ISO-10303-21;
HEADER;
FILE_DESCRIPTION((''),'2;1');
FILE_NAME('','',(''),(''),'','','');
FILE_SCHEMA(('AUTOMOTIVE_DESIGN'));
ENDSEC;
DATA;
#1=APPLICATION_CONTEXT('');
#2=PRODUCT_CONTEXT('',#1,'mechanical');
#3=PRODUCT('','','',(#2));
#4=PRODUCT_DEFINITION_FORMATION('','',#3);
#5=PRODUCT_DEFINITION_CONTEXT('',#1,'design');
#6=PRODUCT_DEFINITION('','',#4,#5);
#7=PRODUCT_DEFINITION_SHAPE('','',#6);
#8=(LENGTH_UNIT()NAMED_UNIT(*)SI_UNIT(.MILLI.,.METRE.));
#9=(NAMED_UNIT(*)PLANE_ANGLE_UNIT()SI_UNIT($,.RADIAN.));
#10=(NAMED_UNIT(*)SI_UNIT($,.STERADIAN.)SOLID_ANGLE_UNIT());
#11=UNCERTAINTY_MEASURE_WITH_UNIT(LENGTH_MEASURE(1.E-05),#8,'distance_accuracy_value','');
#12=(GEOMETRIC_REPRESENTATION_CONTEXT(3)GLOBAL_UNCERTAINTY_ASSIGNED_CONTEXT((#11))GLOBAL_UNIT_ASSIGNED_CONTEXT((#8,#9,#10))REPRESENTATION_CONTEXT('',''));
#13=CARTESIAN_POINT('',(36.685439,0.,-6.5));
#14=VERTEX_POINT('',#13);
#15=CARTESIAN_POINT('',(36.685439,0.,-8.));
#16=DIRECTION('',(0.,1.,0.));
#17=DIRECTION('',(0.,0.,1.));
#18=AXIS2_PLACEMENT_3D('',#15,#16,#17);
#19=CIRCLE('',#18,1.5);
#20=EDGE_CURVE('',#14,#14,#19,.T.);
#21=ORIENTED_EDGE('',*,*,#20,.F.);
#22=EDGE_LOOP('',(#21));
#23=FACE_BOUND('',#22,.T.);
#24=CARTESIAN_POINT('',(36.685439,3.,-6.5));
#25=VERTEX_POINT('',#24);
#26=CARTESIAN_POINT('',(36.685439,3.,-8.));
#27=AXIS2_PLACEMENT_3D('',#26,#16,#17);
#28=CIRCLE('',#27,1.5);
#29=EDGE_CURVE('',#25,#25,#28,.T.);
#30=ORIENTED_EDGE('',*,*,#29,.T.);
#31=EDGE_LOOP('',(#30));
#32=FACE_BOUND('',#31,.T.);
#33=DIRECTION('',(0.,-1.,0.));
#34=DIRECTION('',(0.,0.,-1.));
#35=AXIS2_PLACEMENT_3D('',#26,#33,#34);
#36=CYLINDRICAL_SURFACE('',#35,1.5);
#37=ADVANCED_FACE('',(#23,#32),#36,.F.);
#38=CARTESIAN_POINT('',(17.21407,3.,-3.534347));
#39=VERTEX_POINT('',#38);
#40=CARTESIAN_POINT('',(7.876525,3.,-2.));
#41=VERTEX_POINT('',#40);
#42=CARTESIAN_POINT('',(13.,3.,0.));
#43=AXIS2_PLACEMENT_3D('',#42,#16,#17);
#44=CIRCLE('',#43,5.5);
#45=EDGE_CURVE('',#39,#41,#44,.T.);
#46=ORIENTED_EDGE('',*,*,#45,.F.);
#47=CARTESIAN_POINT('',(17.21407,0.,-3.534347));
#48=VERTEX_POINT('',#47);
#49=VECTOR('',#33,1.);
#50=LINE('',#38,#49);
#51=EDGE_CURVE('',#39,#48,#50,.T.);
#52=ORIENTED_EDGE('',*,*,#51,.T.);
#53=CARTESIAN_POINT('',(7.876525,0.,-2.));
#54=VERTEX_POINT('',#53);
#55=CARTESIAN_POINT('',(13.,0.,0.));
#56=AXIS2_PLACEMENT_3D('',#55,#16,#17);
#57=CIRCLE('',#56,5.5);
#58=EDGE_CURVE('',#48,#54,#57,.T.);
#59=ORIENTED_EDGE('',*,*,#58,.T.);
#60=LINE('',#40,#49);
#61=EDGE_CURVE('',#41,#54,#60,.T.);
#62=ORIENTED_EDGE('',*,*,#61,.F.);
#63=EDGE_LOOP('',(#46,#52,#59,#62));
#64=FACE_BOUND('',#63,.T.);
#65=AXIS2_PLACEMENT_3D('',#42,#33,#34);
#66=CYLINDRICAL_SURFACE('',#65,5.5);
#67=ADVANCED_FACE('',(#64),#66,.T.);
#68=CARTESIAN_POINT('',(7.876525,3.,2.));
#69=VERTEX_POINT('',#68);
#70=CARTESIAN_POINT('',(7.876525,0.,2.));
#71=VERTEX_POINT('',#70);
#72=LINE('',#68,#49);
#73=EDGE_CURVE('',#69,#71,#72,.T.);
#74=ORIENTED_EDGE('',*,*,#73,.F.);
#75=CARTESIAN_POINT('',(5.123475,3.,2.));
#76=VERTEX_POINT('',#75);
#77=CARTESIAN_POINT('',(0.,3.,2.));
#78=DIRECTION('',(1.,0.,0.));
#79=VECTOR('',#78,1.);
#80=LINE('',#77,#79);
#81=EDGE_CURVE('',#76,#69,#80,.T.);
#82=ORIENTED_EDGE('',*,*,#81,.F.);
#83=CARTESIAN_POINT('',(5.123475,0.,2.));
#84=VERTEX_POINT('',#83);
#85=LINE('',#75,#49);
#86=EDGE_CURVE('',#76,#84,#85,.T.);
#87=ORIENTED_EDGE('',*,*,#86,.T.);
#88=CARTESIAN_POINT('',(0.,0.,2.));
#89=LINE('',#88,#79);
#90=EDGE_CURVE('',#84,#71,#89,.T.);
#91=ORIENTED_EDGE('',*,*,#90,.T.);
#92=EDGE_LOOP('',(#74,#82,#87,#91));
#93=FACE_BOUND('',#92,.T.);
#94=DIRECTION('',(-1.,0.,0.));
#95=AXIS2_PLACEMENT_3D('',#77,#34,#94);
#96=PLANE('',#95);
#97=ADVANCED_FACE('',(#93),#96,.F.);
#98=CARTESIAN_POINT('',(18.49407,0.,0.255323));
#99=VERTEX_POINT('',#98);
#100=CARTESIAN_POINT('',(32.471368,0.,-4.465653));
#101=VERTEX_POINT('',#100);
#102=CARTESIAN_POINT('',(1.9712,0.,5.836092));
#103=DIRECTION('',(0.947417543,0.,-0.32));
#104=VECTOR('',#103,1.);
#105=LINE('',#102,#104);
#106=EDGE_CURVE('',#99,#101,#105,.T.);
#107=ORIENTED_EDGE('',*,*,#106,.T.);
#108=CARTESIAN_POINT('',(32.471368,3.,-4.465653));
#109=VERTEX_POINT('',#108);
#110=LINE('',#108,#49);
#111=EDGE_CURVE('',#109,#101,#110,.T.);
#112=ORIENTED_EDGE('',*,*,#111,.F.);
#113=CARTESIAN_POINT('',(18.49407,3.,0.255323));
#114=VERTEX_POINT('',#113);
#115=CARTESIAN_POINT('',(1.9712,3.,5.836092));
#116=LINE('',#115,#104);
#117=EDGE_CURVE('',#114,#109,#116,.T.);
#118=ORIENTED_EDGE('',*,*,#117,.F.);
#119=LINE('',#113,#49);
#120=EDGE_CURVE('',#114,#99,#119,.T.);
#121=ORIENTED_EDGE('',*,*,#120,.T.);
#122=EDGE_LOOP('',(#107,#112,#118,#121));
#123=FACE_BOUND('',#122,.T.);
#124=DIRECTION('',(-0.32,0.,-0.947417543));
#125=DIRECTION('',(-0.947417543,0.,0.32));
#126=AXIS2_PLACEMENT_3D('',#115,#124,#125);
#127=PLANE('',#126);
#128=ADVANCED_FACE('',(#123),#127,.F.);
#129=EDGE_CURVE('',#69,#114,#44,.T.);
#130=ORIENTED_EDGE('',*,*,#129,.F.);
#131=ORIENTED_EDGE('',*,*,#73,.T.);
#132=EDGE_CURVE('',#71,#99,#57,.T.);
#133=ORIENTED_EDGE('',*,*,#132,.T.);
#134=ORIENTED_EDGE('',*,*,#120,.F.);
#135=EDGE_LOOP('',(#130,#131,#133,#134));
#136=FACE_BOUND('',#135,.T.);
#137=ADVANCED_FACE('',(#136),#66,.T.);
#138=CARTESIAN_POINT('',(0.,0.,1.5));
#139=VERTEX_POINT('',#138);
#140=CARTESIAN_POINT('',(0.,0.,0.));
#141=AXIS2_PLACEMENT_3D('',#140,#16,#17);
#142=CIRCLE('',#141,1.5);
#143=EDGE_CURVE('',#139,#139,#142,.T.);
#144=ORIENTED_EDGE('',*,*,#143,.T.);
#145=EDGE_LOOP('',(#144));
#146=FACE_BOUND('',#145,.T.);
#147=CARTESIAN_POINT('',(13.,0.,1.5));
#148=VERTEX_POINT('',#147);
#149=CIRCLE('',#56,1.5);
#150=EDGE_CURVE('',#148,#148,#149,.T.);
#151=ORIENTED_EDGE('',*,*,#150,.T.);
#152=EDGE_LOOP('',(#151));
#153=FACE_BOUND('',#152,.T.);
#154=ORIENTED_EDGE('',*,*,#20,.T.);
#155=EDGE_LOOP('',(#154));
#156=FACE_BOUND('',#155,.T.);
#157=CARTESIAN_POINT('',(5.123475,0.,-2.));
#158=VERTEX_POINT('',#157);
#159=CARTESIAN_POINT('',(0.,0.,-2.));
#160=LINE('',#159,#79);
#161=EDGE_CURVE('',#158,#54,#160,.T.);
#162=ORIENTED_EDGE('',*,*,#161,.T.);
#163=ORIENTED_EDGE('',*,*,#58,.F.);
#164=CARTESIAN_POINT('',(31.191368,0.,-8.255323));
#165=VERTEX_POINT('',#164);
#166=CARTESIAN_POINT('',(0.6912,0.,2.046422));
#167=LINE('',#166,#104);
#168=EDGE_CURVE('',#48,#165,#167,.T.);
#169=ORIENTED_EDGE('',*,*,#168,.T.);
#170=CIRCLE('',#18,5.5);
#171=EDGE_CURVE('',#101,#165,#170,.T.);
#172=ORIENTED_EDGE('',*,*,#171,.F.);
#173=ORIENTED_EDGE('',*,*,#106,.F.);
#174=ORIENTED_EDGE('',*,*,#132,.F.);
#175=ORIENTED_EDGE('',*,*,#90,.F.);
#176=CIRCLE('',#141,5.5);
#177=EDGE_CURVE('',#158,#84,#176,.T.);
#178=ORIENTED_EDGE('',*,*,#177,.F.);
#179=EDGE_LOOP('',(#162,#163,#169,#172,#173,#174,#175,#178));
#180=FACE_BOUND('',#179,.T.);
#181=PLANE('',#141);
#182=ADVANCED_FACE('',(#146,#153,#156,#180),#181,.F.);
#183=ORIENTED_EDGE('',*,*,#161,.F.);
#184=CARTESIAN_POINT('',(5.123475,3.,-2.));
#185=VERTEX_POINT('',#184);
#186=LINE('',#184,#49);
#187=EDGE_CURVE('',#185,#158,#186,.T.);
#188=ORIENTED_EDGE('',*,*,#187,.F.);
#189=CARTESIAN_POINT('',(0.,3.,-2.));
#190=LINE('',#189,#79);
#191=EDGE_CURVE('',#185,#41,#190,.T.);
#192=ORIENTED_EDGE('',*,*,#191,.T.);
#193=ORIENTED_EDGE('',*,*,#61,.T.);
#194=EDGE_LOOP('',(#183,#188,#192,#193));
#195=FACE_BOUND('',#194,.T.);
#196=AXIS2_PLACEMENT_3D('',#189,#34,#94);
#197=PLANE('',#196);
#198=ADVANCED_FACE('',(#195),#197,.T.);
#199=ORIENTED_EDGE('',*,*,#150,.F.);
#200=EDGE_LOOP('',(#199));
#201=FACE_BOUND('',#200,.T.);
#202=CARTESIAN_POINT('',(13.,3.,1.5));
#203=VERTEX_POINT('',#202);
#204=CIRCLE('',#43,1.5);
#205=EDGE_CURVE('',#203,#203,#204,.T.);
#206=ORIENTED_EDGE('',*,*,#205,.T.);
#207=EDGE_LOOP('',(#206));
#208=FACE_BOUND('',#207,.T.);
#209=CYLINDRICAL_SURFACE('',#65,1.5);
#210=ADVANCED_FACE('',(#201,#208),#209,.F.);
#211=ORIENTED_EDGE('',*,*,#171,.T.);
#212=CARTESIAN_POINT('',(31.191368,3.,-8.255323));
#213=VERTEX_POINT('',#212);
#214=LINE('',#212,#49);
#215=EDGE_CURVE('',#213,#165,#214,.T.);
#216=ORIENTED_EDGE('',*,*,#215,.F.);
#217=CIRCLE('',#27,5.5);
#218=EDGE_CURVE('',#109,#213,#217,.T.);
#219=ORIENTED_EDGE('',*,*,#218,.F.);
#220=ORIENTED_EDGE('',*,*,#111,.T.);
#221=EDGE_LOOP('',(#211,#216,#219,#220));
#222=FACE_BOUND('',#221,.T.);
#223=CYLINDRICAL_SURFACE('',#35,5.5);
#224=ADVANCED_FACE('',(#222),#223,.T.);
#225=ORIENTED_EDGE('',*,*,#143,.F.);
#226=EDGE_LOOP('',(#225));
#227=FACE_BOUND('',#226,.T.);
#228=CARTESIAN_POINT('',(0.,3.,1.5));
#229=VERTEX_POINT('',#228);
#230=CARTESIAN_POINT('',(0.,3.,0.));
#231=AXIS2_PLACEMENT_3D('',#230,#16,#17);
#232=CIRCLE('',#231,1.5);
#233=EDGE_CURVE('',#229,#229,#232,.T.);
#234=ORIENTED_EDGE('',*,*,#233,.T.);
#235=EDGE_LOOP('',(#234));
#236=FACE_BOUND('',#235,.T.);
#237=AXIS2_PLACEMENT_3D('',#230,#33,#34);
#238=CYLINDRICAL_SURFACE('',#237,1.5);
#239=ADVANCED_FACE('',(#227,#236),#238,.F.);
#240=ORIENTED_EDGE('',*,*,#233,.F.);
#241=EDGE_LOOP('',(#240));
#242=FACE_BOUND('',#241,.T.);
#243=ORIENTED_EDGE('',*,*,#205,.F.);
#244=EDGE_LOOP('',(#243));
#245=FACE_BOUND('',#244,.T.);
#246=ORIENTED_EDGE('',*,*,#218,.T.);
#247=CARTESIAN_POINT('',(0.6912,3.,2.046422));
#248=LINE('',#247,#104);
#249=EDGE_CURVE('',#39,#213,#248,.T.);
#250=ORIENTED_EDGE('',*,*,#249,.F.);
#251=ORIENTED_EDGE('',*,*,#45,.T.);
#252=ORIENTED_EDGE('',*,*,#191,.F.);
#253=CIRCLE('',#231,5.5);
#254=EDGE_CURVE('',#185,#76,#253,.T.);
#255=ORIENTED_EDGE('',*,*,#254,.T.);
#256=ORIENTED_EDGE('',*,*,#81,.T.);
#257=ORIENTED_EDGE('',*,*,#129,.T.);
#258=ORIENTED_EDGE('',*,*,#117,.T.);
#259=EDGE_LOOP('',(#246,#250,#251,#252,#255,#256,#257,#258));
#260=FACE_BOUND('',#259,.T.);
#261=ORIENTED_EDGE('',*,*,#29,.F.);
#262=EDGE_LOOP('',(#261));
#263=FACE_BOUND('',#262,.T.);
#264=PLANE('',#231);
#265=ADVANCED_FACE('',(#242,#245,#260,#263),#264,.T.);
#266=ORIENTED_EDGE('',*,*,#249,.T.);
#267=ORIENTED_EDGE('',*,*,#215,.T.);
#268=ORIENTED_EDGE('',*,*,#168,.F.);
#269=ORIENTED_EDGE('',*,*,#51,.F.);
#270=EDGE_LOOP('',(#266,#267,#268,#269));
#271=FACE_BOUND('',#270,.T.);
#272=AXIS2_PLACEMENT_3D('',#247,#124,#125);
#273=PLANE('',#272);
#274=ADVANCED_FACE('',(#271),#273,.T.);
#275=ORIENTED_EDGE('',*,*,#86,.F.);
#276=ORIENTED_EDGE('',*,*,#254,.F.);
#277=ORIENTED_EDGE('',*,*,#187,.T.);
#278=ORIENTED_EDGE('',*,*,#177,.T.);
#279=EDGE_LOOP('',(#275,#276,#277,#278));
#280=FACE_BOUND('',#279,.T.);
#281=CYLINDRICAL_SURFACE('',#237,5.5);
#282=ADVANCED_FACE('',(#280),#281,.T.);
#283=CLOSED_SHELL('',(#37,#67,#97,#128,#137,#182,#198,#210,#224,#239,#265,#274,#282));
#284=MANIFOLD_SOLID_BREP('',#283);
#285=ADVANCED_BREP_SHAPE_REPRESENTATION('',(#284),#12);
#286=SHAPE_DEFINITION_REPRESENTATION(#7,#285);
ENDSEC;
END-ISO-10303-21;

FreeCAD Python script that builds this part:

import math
import FreeCAD as App
import Part
import Sketcher
from FreeCAD import Vector

doc = App.newDocument("Part")
body = doc.addObject("PartDesign::Body", "Body")

# Sketch on XZ plane
sketch1 = body.newObject("Sketcher::SketchObject", "Sketch")
sketch1.AttachmentSupport = (doc.getObject("XZ_Plane"), [""])
sketch1.MapMode = "FlatFace"
sketch1.addGeometry(Part.ArcOfCircle(Part.Circle(Vector(0, 0, 0), Vector(0, 0, 1), 5.5), math.radians(21), math.radians(339)), False)
sketch1.addGeometry(Part.LineSegment(Vector(5.1, 2, 0), Vector(7.9, 2, 0)), False)
sketch1.addGeometry(Part.ArcOfCircle(Part.Circle(Vector(13, 0, 0), Vector(0, 0, 1), 5.5), math.radians(3), math.radians(159)), False)
sketch1.addGeometry(Part.LineSegment(Vector(18.5, 0.3, 0), Vector(32.5, -4.5, 0)), False)
sketch1.addGeometry(Part.ArcOfCircle(Part.Circle(Vector(36.7, -8, 0), Vector(0, 0, 1), 5.5), math.radians(-177), math.radians(140)), False)
sketch1.addGeometry(Part.LineSegment(Vector(31.2, -8.3, 0), Vector(17.2, -3.5, 0)), False)
sketch1.addGeometry(Part.ArcOfCircle(Part.Circle(Vector(13, 0, 0), Vector(0, 0, 1), 5.5), math.radians(-159), math.radians(-40)), False)
sketch1.addGeometry(Part.LineSegment(Vector(7.9, -2, 0), Vector(5.1, -2, 0)), False)
sketch1.addGeometry(Part.Circle(Vector(0, 0, 0), Vector(0, 0, 1), 1.5), False)
sketch1.addGeometry(Part.Circle(Vector(13, 0, 0), Vector(0, 0, 1), 1.5), False)
sketch1.addGeometry(Part.Circle(Vector(36.7, -8, 0), Vector(0, 0, 1), 1.5), False)
sketch1.addConstraint(Sketcher.Constraint("Coincident", 0, 1, 1, 1))
sketch1.addConstraint(Sketcher.Constraint("Coincident", 1, 2, 2, 2))
sketch1.addConstraint(Sketcher.Constraint("Coincident", 2, 1, 3, 1))
sketch1.addConstraint(Sketcher.Constraint("Coincident", 3, 2, 4, 2))
sketch1.addConstraint(Sketcher.Constraint("Coincident", 4, 1, 5, 1))
sketch1.addConstraint(Sketcher.Constraint("Coincident", 5, 2, 6, 2))
sketch1.addConstraint(Sketcher.Constraint("Coincident", 6, 1, 7, 1))
sketch1.addConstraint(Sketcher.Constraint("Coincident", 7, 2, 0, 2))
sketch1.addConstraint(Sketcher.Constraint("Horizontal", 1))
sketch1.addConstraint(Sketcher.Constraint("Horizontal", 7))
sketch1.addConstraint(Sketcher.Constraint("Coincident", 0, 3, -1, 1))
sketch1.addConstraint(Sketcher.Constraint("Coincident", 8, 3, -1, 1))
sketch1.addConstraint(Sketcher.Constraint("Coincident", 6, 3, 2, 3))
sketch1.addConstraint(Sketcher.Constraint("Coincident", 9, 3, 2, 3))
sketch1.addConstraint(Sketcher.Constraint("Coincident", 10, 3, 4, 3))
sketch1.addConstraint(Sketcher.Constraint("Equal", 0, 2))
sketch1.addConstraint(Sketcher.Constraint("Equal", 2, 4))
sketch1.addConstraint(Sketcher.Constraint("Equal", 4, 6))
sketch1.addConstraint(Sketcher.Constraint("Equal", 8, 9))
sketch1.addConstraint(Sketcher.Constraint("Equal", 9, 10))
sketch1.addConstraint(Sketcher.Constraint("Symmetric", 1, 2, 6, 1, -1))
sketch1.addConstraint(Sketcher.Constraint("Parallel", 3, 5))
sketch1.addConstraint(Sketcher.Constraint("Equal", 3, 5))
sketch1.addConstraint(Sketcher.Constraint("Diameter", 8, 3.0))
sketch1.addConstraint(Sketcher.Constraint("Radius", 0, 5.5))
sketch1.addConstraint(Sketcher.Constraint("DistanceX", -1, 1, 2, 3, 13.0))
sketch1.addConstraint(Sketcher.Constraint("DistanceY", 4, 3, -1, 1, 8.0))
sketch1.addConstraint(Sketcher.Constraint("DistanceY", -1, 1, 0, 1, 2.0))
sketch1.addConstraint(Sketcher.Constraint("DistanceX", 4, 1, 3, 2, 1.28))
sketch1.addConstraint(Sketcher.Constraint("Distance", 3, 14.753049))
sketch1.addConstraint(Sketcher.Constraint("DistanceX", -1, 1, 4, 3, 36.685439))
pad1 = body.newObject("PartDesign::Pad", "Pad")
pad1.Profile = sketch1
pad1.Length = 3
pad1.Reversed = True

doc.recompute()
